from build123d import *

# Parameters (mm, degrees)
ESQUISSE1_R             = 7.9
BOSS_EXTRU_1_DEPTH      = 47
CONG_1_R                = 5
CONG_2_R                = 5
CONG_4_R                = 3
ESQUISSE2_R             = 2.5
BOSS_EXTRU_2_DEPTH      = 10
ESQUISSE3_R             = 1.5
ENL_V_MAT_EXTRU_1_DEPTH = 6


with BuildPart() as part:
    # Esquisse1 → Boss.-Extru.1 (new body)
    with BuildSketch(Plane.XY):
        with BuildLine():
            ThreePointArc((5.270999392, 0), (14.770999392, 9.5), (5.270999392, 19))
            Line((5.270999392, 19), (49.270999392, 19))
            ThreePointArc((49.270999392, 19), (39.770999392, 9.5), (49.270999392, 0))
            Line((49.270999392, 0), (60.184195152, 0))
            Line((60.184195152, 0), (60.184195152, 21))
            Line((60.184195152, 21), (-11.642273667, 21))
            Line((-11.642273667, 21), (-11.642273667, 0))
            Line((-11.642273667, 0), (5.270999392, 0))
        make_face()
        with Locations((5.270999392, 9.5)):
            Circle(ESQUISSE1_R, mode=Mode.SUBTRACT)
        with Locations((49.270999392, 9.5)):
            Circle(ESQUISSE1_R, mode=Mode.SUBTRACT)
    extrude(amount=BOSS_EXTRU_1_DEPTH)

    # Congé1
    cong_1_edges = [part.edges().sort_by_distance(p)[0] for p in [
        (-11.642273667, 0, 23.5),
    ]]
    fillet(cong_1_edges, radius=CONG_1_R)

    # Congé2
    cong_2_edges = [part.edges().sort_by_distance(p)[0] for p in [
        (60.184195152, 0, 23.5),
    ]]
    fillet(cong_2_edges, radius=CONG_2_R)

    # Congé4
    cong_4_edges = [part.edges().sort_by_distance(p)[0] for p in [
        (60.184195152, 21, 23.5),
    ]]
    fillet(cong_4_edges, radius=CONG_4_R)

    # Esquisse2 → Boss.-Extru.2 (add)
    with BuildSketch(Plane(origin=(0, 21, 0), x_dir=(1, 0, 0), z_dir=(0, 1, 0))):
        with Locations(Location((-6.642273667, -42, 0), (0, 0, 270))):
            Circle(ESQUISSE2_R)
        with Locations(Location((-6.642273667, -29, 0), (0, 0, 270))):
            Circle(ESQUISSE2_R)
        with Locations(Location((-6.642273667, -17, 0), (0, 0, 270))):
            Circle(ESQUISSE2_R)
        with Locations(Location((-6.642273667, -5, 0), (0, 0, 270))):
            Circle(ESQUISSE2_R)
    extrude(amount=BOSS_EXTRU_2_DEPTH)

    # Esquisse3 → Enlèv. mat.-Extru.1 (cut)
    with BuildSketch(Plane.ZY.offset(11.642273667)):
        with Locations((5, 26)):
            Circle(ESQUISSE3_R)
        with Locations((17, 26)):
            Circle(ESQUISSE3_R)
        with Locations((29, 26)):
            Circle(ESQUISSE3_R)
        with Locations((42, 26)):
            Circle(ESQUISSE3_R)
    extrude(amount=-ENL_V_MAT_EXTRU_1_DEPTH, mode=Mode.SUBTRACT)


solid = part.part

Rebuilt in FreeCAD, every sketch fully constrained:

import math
import FreeCAD as App
import Part
import Sketcher


def edges_at(feature, points):
    """Names of the edges that pass closest to the given points."""
    edges = feature.Shape.Edges
    near = lambda p: min(range(len(edges)), key=lambda i: edges[i].distToShape(Part.Vertex(*p))[0])
    return sorted({f"Edge{near(p) + 1}" for p in points})

doc = App.newDocument("Part")
body = doc.addObject("PartDesign::Body", "Body")

# Sketch on XY plane
sketch1 = body.newObject("Sketcher::SketchObject", "Sketch")
sketch1.AttachmentSupport = (doc.getObject("XY_Plane"), [""])
sketch1.MapMode = "FlatFace"
sketch1.addGeometry(Part.ArcOfCircle(Part.Circle(App.Vector(5, 10, 0), App.Vector(0, 0, 1), 10), math.radians(-90), math.radians(90)), False)
sketch1.addGeometry(Part.LineSegment(App.Vector(5, 19, 0), App.Vector(49, 19, 0)), False)
sketch1.addGeometry(Part.ArcOfCircle(Part.Circle(App.Vector(49, 10, 0), App.Vector(0, 0, 1), 10), math.radians(90), math.radians(270)), False)
sketch1.addGeometry(Part.LineSegment(App.Vector(49, 0, 0), App.Vector(60, 0, 0)), False)
sketch1.addGeometry(Part.LineSegment(App.Vector(60, 0, 0), App.Vector(60, 21, 0)), False)
sketch1.addGeometry(Part.LineSegment(App.Vector(60, 21, 0), App.Vector(-12, 21, 0)), False)
sketch1.addGeometry(Part.LineSegment(App.Vector(-12, 21, 0), App.Vector(-12, 0, 0)), False)
sketch1.addGeometry(Part.LineSegment(App.Vector(-12, 0, 0), App.Vector(5, 0, 0)), False)
sketch1.addGeometry(Part.Circle(App.Vector(5, 10, 0), App.Vector(0, 0, 1), 8), False)
sketch1.addGeometry(Part.Circle(App.Vector(49, 10, 0), App.Vector(0, 0, 1), 8), False)
sketch1.addConstraint(Sketcher.Constraint("Tangent", 0, 2, 1, 1))
sketch1.addConstraint(Sketcher.Constraint("Tangent", 1, 2, 2, 1))
sketch1.addConstraint(Sketcher.Constraint("Tangent", 2, 2, 3, 1))
sketch1.addConstraint(Sketcher.Constraint("Coincident", 3, 2, 4, 1))
sketch1.addConstraint(Sketcher.Constraint("Coincident", 4, 2, 5, 1))
sketch1.addConstraint(Sketcher.Constraint("Coincident", 5, 2, 6, 1))
sketch1.addConstraint(Sketcher.Constraint("Coincident", 6, 2, 7, 1))
sketch1.addConstraint(Sketcher.Constraint("Tangent", 7, 2, 0, 1))
sketch1.addConstraint(Sketcher.Constraint("Horizontal", 1))
sketch1.addConstraint(Sketcher.Constraint("Horizontal", 3))
sketch1.addConstraint(Sketcher.Constraint("Vertical", 4))
sketch1.addConstraint(Sketcher.Constraint("Horizontal", 5))
sketch1.addConstraint(Sketcher.Constraint("Vertical", 6))
sketch1.addConstraint(Sketcher.Constraint("Horizontal", 7))
sketch1.addConstraint(Sketcher.Constraint("Coincident", 8, 3, 0, 3))
sketch1.addConstraint(Sketcher.Constraint("Coincident", 9, 3, 2, 3))
sketch1.addConstraint(Sketcher.Constraint("Equal", 0, 2))
sketch1.addConstraint(Sketcher.Constraint("Equal", 8, 9))
sketch1.addConstraint(Sketcher.Constraint("PointOnObject", 2, 2, -1))
sketch1.addConstraint(Sketcher.Constraint("Diameter", 8, 15.8))
sketch1.addConstraint(Sketcher.Constraint("Radius", 0, 9.5))
sketch1.addConstraint(Sketcher.Constraint("DistanceX", 1, 1, 1, 2, 44.0))
sketch1.addConstraint(Sketcher.Constraint("DistanceY", 4, 1, 4, 2, 21.0))
sketch1.addConstraint(Sketcher.Constraint("DistanceX", -1, 1, 0, 3, 5.270999))
sketch1.addConstraint(Sketcher.Constraint("DistanceX", 5, 2, 5, 1, 71.826469))
sketch1.addConstraint(Sketcher.Constraint("DistanceX", 3, 1, 3, 2, 10.913196))
pad1 = body.newObject("PartDesign::Pad", "Pad")
pad1.Profile = sketch1
pad1.Length = 47
doc.recompute()

fillet = body.newObject("PartDesign::Fillet", "Fillet")
fillet.Base = (pad1, edges_at(pad1, [(-11.642, 0, 23.5)]))
fillet.Radius = 5
doc.recompute()

fillet2 = body.newObject("PartDesign::Fillet", "Fillet001")
fillet2.Base = (fillet, edges_at(fillet, [(60.184, 0, 23.5)]))
fillet2.Radius = 5
doc.recompute()

fillet3 = body.newObject("PartDesign::Fillet", "Fillet002")
fillet3.Base = (fillet2, edges_at(fillet2, [(60.184, 21, 23.5)]))
fillet3.Radius = 3

# Sketch on XZ plane
sketch2 = body.newObject("Sketcher::SketchObject", "Sketch001")
sketch2.AttachmentSupport = (doc.getObject("XZ_Plane"), [""])
sketch2.MapMode = "FlatFace"
sketch2.AttachmentOffset = App.Placement(App.Vector(0, 0, -21), App.Rotation())
sketch2.addGeometry(Part.Circle(App.Vector(-6.6, 42, 0), App.Vector(0, 0, 1), 2.5), False)
sketch2.addGeometry(Part.Circle(App.Vector(-6.6, 29, 0), App.Vector(0, 0, 1), 2.5), False)
sketch2.addGeometry(Part.Circle(App.Vector(-6.6, 17, 0), App.Vector(0, 0, 1), 2.5), False)
sketch2.addGeometry(Part.Circle(App.Vector(-6.6, 5, 0), App.Vector(0, 0, 1), 2.5), False)
sketch2.addConstraint(Sketcher.Constraint("Equal", 0, 1))
sketch2.addConstraint(Sketcher.Constraint("Equal", 1, 2))
sketch2.addConstraint(Sketcher.Constraint("Equal", 2, 3))
sketch2.addConstraint(Sketcher.Constraint("Vertical", 0, 3, 1, 3))
sketch2.addConstraint(Sketcher.Constraint("Vertical", 1, 3, 2, 3))
sketch2.addConstraint(Sketcher.Constraint("Vertical", 2, 3, 3, 3))
sketch2.addConstraint(Sketcher.Constraint("Diameter", 0, 5.0))
sketch2.addConstraint(Sketcher.Constraint("DistanceY", -1, 1, 0, 3, 42.0))
sketch2.addConstraint(Sketcher.Constraint("DistanceY", -1, 1, 1, 3, 29.0))
sketch2.addConstraint(Sketcher.Constraint("DistanceY", -1, 1, 2, 3, 17.0))
sketch2.addConstraint(Sketcher.Constraint("DistanceY", -1, 1, 3, 3, 5.0))
sketch2.addConstraint(Sketcher.Constraint("DistanceX", 0, 3, -1, 1, 6.642274))
pad2 = body.newObject("PartDesign::Pad", "Pad001")
pad2.Profile = sketch2
pad2.Length = 10
pad2.Reversed = True

# Sketch on YZ plane
sketch3 = body.newObject("Sketcher::SketchObject", "Sketch002")
sketch3.AttachmentSupport = (doc.getObject("YZ_Plane"), [""])
sketch3.MapMode = "FlatFace"
sketch3.AttachmentOffset = App.Placement(App.Vector(0, 0, -11.642274), App.Rotation())
sketch3.addGeometry(Part.Circle(App.Vector(26, 5, 0), App.Vector(0, 0, 1), 1.5), False)
sketch3.addGeometry(Part.Circle(App.Vector(26, 17, 0), App.Vector(0, 0, 1), 1.5), False)
sketch3.addGeometry(Part.Circle(App.Vector(26, 29, 0), App.Vector(0, 0, 1), 1.5), False)
sketch3.addGeometry(Part.Circle(App.Vector(26, 42, 0), App.Vector(0, 0, 1), 1.5), False)
sketch3.addConstraint(Sketcher.Constraint("Equal", 0, 1))
sketch3.addConstraint(Sketcher.Constraint("Equal", 1, 2))
sketch3.addConstraint(Sketcher.Constraint("Equal", 2, 3))
sketch3.addConstraint(Sketcher.Constraint("Vertical", 0, 3, 1, 3))
sketch3.addConstraint(Sketcher.Constraint("Vertical", 1, 3, 2, 3))
sketch3.addConstraint(Sketcher.Constraint("Vertical", 2, 3, 3, 3))
sketch3.addConstraint(Sketcher.Constraint("Diameter", 0, 3.0))
sketch3.addConstraint(Sketcher.Constraint("DistanceX", -1, 1, 0, 3, 26.0))
sketch3.addConstraint(Sketcher.Constraint("DistanceY", -1, 1, 0, 3, 5.0))
sketch3.addConstraint(Sketcher.Constraint("DistanceY", -1, 1, 1, 3, 17.0))
sketch3.addConstraint(Sketcher.Constraint("DistanceY", -1, 1, 2, 3, 29.0))
sketch3.addConstraint(Sketcher.Constraint("DistanceY", -1, 1, 3, 3, 42.0))
pocket1 = body.newObject("PartDesign::Pocket", "Pocket")
pocket1.Profile = sketch3
pocket1.Length = 6
pocket1.Reversed = True

doc.recompute()
